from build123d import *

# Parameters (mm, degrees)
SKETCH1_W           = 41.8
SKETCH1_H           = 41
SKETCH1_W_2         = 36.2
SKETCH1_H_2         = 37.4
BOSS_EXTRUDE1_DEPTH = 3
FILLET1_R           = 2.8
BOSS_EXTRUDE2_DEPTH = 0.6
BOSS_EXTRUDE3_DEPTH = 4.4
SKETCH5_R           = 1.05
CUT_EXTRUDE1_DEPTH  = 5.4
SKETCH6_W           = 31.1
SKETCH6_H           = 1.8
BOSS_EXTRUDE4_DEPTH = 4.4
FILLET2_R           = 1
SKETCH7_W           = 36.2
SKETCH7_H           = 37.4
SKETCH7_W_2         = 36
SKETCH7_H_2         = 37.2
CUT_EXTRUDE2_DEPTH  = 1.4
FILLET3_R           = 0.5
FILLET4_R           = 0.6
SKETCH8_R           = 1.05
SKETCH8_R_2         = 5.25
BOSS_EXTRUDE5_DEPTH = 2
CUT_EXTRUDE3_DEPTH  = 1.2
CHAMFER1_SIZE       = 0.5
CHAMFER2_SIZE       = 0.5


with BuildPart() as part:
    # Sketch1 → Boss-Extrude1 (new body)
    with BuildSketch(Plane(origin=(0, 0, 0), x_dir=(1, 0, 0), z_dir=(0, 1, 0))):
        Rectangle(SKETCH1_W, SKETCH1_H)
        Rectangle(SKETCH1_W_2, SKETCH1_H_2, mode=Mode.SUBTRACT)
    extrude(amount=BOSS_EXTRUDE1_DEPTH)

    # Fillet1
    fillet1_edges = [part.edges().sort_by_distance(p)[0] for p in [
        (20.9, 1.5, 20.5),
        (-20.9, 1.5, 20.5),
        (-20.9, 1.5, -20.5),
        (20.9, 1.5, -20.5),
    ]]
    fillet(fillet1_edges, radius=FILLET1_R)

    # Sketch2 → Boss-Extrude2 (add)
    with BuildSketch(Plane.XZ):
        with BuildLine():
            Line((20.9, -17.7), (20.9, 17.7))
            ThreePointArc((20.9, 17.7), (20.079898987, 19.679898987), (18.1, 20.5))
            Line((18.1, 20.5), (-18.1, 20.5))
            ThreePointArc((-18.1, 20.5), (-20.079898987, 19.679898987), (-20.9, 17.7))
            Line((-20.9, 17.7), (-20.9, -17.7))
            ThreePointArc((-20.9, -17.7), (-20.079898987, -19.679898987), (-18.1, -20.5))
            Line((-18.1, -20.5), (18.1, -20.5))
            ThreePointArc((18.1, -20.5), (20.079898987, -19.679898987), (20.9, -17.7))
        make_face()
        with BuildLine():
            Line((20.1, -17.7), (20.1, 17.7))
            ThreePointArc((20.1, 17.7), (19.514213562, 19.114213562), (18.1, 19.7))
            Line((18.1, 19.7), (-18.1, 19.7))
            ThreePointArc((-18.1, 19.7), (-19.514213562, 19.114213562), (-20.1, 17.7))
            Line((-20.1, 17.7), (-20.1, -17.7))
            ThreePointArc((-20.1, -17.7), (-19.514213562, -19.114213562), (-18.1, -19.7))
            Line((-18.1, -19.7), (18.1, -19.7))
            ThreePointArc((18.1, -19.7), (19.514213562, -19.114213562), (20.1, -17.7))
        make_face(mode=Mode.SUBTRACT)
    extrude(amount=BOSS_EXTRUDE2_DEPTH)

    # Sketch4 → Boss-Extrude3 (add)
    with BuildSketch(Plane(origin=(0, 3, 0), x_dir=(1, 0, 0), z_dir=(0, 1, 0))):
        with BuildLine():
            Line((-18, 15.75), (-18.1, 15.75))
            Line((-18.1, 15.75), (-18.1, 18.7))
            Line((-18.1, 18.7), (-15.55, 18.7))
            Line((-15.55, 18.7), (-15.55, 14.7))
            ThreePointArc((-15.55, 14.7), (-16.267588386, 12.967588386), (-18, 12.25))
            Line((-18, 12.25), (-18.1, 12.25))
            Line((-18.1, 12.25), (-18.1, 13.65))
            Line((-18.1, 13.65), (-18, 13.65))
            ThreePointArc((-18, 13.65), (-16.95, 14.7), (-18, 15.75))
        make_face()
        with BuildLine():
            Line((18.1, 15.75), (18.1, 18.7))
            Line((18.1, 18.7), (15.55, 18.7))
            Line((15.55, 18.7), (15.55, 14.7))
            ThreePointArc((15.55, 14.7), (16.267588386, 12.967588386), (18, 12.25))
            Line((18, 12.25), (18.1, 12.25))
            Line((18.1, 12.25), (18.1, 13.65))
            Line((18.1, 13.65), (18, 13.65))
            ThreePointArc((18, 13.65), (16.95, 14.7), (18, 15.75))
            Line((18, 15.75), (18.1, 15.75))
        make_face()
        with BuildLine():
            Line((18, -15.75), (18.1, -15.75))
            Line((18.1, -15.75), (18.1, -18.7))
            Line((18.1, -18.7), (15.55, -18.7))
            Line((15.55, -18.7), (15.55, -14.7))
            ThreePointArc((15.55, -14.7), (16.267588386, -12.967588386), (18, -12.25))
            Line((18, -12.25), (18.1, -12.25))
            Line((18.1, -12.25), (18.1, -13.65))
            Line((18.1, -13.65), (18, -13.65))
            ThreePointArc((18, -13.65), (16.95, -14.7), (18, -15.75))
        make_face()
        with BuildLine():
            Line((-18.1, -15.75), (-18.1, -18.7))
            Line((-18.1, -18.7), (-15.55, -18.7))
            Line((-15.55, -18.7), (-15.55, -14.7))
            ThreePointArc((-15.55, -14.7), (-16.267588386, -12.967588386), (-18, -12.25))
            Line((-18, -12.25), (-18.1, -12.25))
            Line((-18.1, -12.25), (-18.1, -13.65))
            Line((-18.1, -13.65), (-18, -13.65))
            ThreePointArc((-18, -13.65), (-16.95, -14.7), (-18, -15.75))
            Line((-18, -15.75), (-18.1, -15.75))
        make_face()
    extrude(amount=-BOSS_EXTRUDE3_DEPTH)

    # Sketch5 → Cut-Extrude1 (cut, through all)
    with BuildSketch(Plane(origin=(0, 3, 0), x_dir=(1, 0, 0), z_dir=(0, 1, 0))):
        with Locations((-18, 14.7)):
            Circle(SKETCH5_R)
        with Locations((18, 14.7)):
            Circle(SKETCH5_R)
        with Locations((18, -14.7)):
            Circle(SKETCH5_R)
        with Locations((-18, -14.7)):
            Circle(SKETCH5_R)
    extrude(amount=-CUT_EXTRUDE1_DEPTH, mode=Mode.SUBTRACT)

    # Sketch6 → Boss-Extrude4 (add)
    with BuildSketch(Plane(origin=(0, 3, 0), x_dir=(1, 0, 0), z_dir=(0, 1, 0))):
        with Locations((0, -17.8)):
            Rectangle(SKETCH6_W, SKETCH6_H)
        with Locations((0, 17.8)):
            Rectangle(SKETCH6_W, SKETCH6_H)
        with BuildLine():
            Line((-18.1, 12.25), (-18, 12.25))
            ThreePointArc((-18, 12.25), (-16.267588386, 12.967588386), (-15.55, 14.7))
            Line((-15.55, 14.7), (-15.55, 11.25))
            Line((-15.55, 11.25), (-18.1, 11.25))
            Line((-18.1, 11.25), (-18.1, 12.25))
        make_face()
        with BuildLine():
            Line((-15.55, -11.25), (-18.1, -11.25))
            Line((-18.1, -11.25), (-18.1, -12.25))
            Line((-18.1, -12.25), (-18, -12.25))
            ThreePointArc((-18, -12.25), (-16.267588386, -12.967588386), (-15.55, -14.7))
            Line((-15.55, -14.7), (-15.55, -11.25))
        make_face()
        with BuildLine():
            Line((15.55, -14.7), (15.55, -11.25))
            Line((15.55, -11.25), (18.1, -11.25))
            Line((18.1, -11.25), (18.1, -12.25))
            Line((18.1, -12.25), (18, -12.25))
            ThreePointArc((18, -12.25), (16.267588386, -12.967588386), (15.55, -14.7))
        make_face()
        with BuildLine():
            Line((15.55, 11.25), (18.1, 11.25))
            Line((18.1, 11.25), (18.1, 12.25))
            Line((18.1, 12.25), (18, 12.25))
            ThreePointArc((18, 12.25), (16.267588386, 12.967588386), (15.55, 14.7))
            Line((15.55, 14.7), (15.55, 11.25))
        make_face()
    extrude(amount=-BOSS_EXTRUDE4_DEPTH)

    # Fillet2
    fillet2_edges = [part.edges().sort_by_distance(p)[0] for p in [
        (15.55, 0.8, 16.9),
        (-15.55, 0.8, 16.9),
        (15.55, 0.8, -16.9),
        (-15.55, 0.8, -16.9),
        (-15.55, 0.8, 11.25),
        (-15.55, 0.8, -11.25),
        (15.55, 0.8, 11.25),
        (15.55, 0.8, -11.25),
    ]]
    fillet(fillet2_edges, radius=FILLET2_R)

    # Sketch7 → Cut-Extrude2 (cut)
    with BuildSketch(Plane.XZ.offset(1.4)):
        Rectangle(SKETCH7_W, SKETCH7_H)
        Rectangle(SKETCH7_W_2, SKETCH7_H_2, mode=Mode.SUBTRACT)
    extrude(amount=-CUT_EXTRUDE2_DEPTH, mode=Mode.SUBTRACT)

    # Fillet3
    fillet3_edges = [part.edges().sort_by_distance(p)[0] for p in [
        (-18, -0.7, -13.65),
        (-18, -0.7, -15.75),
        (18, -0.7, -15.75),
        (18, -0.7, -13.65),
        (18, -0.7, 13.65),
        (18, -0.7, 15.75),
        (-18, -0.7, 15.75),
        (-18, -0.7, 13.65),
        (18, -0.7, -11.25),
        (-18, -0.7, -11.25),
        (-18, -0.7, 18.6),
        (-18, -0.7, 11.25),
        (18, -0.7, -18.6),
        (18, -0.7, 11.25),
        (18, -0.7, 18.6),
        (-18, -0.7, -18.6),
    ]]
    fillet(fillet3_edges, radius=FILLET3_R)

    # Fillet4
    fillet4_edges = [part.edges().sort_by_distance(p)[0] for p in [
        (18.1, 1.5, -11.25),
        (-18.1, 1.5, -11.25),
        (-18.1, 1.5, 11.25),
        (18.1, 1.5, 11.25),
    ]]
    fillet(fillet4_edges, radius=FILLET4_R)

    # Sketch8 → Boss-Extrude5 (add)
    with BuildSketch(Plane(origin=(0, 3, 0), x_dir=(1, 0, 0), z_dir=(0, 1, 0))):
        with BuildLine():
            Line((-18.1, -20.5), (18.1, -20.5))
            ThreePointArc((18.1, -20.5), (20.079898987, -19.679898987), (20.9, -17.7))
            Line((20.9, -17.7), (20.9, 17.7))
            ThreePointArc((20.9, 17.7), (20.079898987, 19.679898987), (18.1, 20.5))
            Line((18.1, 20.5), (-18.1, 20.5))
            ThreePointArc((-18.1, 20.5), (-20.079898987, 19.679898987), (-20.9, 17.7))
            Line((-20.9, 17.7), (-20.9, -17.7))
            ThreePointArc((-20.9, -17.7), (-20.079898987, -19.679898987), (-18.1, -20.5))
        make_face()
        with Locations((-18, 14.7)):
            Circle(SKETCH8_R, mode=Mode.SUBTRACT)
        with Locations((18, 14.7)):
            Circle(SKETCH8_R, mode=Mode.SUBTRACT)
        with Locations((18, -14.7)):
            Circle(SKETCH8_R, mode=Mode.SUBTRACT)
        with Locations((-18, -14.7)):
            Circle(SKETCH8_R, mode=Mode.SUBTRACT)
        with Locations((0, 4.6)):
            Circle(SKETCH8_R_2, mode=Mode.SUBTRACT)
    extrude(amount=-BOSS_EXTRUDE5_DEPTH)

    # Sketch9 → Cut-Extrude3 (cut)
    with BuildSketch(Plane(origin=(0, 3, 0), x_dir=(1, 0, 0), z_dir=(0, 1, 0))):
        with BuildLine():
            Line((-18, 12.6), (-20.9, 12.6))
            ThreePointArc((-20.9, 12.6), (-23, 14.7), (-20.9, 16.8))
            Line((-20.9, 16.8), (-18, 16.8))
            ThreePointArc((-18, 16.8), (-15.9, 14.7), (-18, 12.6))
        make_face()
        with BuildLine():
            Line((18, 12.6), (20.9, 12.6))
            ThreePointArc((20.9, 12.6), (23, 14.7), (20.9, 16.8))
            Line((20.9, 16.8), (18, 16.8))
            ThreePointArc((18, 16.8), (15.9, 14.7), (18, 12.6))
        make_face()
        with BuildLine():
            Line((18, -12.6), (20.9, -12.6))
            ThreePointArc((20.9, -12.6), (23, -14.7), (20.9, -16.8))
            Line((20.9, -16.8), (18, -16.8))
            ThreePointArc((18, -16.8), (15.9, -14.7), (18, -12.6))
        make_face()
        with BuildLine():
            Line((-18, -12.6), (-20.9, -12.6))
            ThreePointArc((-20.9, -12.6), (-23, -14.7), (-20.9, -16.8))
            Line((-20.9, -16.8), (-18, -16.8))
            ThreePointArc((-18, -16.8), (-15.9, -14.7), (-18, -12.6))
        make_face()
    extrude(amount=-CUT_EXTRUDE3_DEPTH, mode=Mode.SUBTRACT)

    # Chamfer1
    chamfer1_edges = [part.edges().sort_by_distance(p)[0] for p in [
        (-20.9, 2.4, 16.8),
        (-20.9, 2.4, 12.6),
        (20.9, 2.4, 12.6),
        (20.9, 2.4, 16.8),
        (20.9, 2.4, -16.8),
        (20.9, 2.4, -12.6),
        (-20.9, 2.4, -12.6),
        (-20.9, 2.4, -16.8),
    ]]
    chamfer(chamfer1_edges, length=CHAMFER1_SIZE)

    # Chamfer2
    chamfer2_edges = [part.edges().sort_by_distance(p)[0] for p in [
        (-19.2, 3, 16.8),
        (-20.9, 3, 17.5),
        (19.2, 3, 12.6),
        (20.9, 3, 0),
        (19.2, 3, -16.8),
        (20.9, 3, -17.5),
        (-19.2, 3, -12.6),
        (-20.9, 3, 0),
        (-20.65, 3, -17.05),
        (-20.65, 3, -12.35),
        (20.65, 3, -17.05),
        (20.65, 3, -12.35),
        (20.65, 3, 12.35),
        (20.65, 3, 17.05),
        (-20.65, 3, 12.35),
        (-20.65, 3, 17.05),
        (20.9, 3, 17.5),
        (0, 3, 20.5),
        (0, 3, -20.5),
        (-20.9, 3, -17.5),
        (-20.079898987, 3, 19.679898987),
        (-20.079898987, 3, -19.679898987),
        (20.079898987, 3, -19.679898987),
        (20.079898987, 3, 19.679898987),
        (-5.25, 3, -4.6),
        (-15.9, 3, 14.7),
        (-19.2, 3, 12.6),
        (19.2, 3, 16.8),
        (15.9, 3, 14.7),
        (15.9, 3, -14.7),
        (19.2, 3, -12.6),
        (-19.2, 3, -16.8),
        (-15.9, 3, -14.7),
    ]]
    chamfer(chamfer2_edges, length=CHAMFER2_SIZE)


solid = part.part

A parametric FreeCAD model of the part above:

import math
import FreeCAD as App
import Part
import Sketcher

V = App.Vector
Q = App.Units.Quantity


def edges_at(feature, points):
    """Names of the edges that pass closest to the given points."""
    edges = feature.Shape.Edges
    near = lambda p: min(range(len(edges)), key=lambda i: edges[i].distToShape(Part.Vertex(*p))[0])
    return sorted({f"Edge{near(p) + 1}" for p in points})

doc = App.newDocument("Part")
body = doc.addObject("PartDesign::Body", "Body")

# Sketch on XZ plane
sketch1 = body.newObject("Sketcher::SketchObject", "Sketch")
sketch1.AttachmentSupport = (doc.getObject("XZ_Plane"), [""])
sketch1.MapMode = "FlatFace"
sketch1.addGeometry(Part.LineSegment(V(-21, -20, 0), V(-21, 20, 0)), False)
sketch1.addGeometry(Part.LineSegment(V(-21, 20, 0), V(21, 20, 0)), False)
sketch1.addGeometry(Part.LineSegment(V(21, 20, 0), V(21, -20, 0)), False)
sketch1.addGeometry(Part.LineSegment(V(21, -20, 0), V(-21, -20, 0)), False)
sketch1.addGeometry(Part.LineSegment(V(18, 19, 0), V(-18, 19, 0)), False)
sketch1.addGeometry(Part.LineSegment(V(-18, 19, 0), V(-18, -19, 0)), False)
sketch1.addGeometry(Part.LineSegment(V(-18, -19, 0), V(18, -19, 0)), False)
sketch1.addGeometry(Part.LineSegment(V(18, -19, 0), V(18, 19, 0)), False)
sketch1.addConstraint(Sketcher.Constraint("Coincident", 0, 2, 1, 1))
sketch1.addConstraint(Sketcher.Constraint("Coincident", 1, 2, 2, 1))
sketch1.addConstraint(Sketcher.Constraint("Coincident", 2, 2, 3, 1))
sketch1.addConstraint(Sketcher.Constraint("Coincident", 3, 2, 0, 1))
sketch1.addConstraint(Sketcher.Constraint("Coincident", 4, 2, 5, 1))
sketch1.addConstraint(Sketcher.Constraint("Coincident", 5, 2, 6, 1))
sketch1.addConstraint(Sketcher.Constraint("Coincident", 6, 2, 7, 1))
sketch1.addConstraint(Sketcher.Constraint("Coincident", 7, 2, 4, 1))
sketch1.addConstraint(Sketcher.Constraint("Vertical", 0))
sketch1.addConstraint(Sketcher.Constraint("Horizontal", 1))
sketch1.addConstraint(Sketcher.Constraint("Vertical", 2))
sketch1.addConstraint(Sketcher.Constraint("Horizontal", 3))
sketch1.addConstraint(Sketcher.Constraint("Horizontal", 4))
sketch1.addConstraint(Sketcher.Constraint("Vertical", 5))
sketch1.addConstraint(Sketcher.Constraint("Horizontal", 6))
sketch1.addConstraint(Sketcher.Constraint("Vertical", 7))
sketch1.addConstraint(Sketcher.Constraint("Symmetric", 0, 2, 2, 2, -1, 1))
sketch1.addConstraint(Sketcher.Constraint("Symmetric", 4, 2, 6, 2, -1, 1))
sketch1.addConstraint(Sketcher.Constraint("DistanceY", 0, 1, 0, 2, Q("41 mm")))
sketch1.addConstraint(Sketcher.Constraint("DistanceX", 1, 1, 1, 2, Q("41.8 mm")))
sketch1.addConstraint(Sketcher.Constraint("DistanceX", 4, 2, 4, 1, Q("36.2 mm")))
sketch1.addConstraint(Sketcher.Constraint("DistanceY", 5, 2, 5, 1, Q("37.4 mm")))
pad1 = body.newObject("PartDesign::Pad", "Pad")
pad1.Profile = sketch1
pad1.Length = 3
pad1.Reversed = True
doc.recompute()

fillet = body.newObject("PartDesign::Fillet", "Fillet")
fillet.Base = (pad1, edges_at(pad1, [
    (20.9, 1.5, 20.5),
    (-20.9, 1.5, 20.5),
    (-20.9, 1.5, -20.5),
    (20.9, 1.5, -20.5),
]))
fillet.Radius = 2.8

# Sketch on XZ plane
sketch2 = body.newObject("Sketcher::SketchObject", "Sketch001")
sketch2.AttachmentSupport = (doc.getObject("XZ_Plane"), [""])
sketch2.MapMode = "FlatFace"
sketch2.addGeometry(Part.LineSegment(V(20.9, -17.7, 0), V(20.9, 17.7, 0)), False)
sketch2.addGeometry(Part.ArcOfCircle(Part.Circle(V(18.1, 17.7, 0), V(0, 0, 1), 2.8), math.radians(0), math.radians(90)), False)
sketch2.addGeometry(Part.LineSegment(V(18.1, 20.5, 0), V(-18.1, 20.5, 0)), False)
sketch2.addGeometry(Part.ArcOfCircle(Part.Circle(V(-18.1, 17.7, 0), V(0, 0, 1), 2.8), math.radians(90), math.radians(180)), False)
sketch2.addGeometry(Part.LineSegment(V(-20.9, 17.7, 0), V(-20.9, -17.7, 0)), False)
sketch2.addGeometry(Part.ArcOfCircle(Part.Circle(V(-18.1, -17.7, 0), V(0, 0, 1), 2.8), math.radians(-180), math.radians(-90)), False)
sketch2.addGeometry(Part.LineSegment(V(-18.1, -20.5, 0), V(18.1, -20.5, 0)), False)
sketch2.addGeometry(Part.ArcOfCircle(Part.Circle(V(18.1, -17.7, 0), V(0, 0, 1), 2.8), math.radians(-90), math.radians(0)), False)
sketch2.addGeometry(Part.LineSegment(V(20.1, 17.7, 0), V(20.1, -17.7, 0)), False)
sketch2.addGeometry(Part.ArcOfCircle(Part.Circle(V(18.1, -17.7, 0), V(0, 0, 1), 2), math.radians(-90), math.radians(0)), False)
sketch2.addGeometry(Part.LineSegment(V(18.1, -19.7, 0), V(-18.1, -19.7, 0)), False)
sketch2.addGeometry(Part.ArcOfCircle(Part.Circle(V(-18.1, -17.7, 0), V(0, 0, 1), 2), math.radians(-180), math.radians(-90)), False)
sketch2.addGeometry(Part.LineSegment(V(-20.1, -17.7, 0), V(-20.1, 17.7, 0)), False)
sketch2.addGeometry(Part.ArcOfCircle(Part.Circle(V(-18.1, 17.7, 0), V(0, 0, 1), 2), math.radians(90), math.radians(180)), False)
sketch2.addGeometry(Part.LineSegment(V(-18.1, 19.7, 0), V(18.1, 19.7, 0)), False)
sketch2.addGeometry(Part.ArcOfCircle(Part.Circle(V(18.1, 17.7, 0), V(0, 0, 1), 2), math.radians(0), math.radians(90)), False)
sketch2.addConstraint(Sketcher.Constraint("Tangent", 0, 2, 1, 1))
sketch2.addConstraint(Sketcher.Constraint("Tangent", 1, 2, 2, 1))
sketch2.addConstraint(Sketcher.Constraint("Tangent", 2, 2, 3, 1))
sketch2.addConstraint(Sketcher.Constraint("Tangent", 3, 2, 4, 1))
sketch2.addConstraint(Sketcher.Constraint("Tangent", 4, 2, 5, 1))
sketch2.addConstraint(Sketcher.Constraint("Tangent", 5, 2, 6, 1))
sketch2.addConstraint(Sketcher.Constraint("Tangent", 6, 2, 7, 1))
sketch2.addConstraint(Sketcher.Constraint("Tangent", 7, 2, 0, 1))
sketch2.addConstraint(Sketcher.Constraint("Tangent", 8, 2, 9, 2))
sketch2.addConstraint(Sketcher.Constraint("Tangent", 9, 1, 10, 1))
sketch2.addConstraint(Sketcher.Constraint("Tangent", 10, 2, 11, 2))
sketch2.addConstraint(Sketcher.Constraint("Tangent", 11, 1, 12, 1))
sketch2.addConstraint(Sketcher.Constraint("Tangent", 12, 2, 13, 2))
sketch2.addConstraint(Sketcher.Constraint("Tangent", 13, 1, 14, 1))
sketch2.addConstraint(Sketcher.Constraint("Tangent", 14, 2, 15, 2))
sketch2.addConstraint(Sketcher.Constraint("Tangent", 15, 1, 8, 1))
sketch2.addConstraint(Sketcher.Constraint("Vertical", 0))
sketch2.addConstraint(Sketcher.Constraint("Horizontal", 2))
sketch2.addConstraint(Sketcher.Constraint("Vertical", 4))
sketch2.addConstraint(Sketcher.Constraint("Horizontal", 6))
sketch2.addConstraint(Sketcher.Constraint("Vertical", 8))
sketch2.addConstraint(Sketcher.Constraint("Horizontal", 10))
sketch2.addConstraint(Sketcher.Constraint("Vertical", 12))
sketch2.addConstraint(Sketcher.Constraint("Horizontal", 14))
sketch2.addConstraint(Sketcher.Constraint("Coincident", 9, 3, 7, 3))
sketch2.addConstraint(Sketcher.Constraint("Coincident", 11, 3, 5, 3))
sketch2.addConstraint(Sketcher.Constraint("Coincident", 13, 3, 3, 3))
sketch2.addConstraint(Sketcher.Constraint("Equal", 1, 3))
sketch2.addConstraint(Sketcher.Constraint("Equal", 3, 5))
sketch2.addConstraint(Sketcher.Constraint("Equal", 5, 7))
sketch2.addConstraint(Sketcher.Constraint("Equal", 13, 15))
sketch2.addConstraint(Sketcher.Constraint("Symmetric", 1, 3, 5, 3, -1, 1))
sketch2.addConstraint(Sketcher.Constraint("Radius", 9, Q("2 mm")))
sketch2.addConstraint(Sketcher.Constraint("Radius", 1, Q("2.8 mm")))
sketch2.addConstraint(Sketcher.Constraint("DistanceX", 2, 2, 2, 1, Q("36.2 mm")))
sketch2.addConstraint(Sketcher.Constraint("DistanceY", 0, 1, 0, 2, Q("35.4 mm")))
pad2 = body.newObject("PartDesign::Pad", "Pad001")
pad2.Profile = sketch2
pad2.Length = 0.6

# Sketch on XZ plane
sketch3 = body.newObject("Sketcher::SketchObject", "Sketch002")
sketch3.AttachmentSupport = (doc.getObject("XZ_Plane"), [""])
sketch3.MapMode = "FlatFace"
sketch3.AttachmentOffset = App.Placement(V(0, 0, -3), App.Rotation())
sketch3.addGeometry(Part.LineSegment(V(-18.1, -15.75, 0), V(-18, -15.75, 0)), False)
sketch3.addGeometry(Part.ArcOfCircle(Part.Circle(V(-18, -14.7, 0), V(0, 0, 1), 1.05), math.radians(-90), math.radians(90)), False)
sketch3.addGeometry(Part.LineSegment(V(-18, -13.65, 0), V(-18.1, -13.65, 0)), False)
sketch3.addGeometry(Part.LineSegment(V(-18.1, -13.65, 0), V(-18.1, -12.25, 0)), False)
sketch3.addGeometry(Part.LineSegment(V(-18.1, -12.25, 0), V(-18, -12.25, 0)), False)
sketch3.addGeometry(Part.ArcOfCircle(Part.Circle(V(-18, -14.7, 0), V(0, 0, 1), 2.45), math.radians(0), math.radians(90)), False)
sketch3.addGeometry(Part.LineSegment(V(-15.55, -14.7, 0), V(-15.55, -18.7, 0)), False)
sketch3.addGeometry(Part.LineSegment(V(-15.55, -18.7, 0), V(-18.1, -18.7, 0)), False)
sketch3.addGeometry(Part.LineSegment(V(-18.1, -18.7, 0), V(-18.1, -15.75, 0)), False)
sketch3.addGeometry(Part.LineSegment(V(18.1, -15.75, 0), V(18.1, -18.7, 0)), False)
sketch3.addGeometry(Part.LineSegment(V(18.1, -18.7, 0), V(15.55, -18.7, 0)), False)
sketch3.addGeometry(Part.LineSegment(V(15.55, -18.7, 0), V(15.55, -14.7, 0)), False)
sketch3.addGeometry(Part.ArcOfCircle(Part.Circle(V(18, -14.7, 0), V(0, 0, 1), 2.45), math.radians(90), math.radians(180)), False)
sketch3.addGeometry(Part.LineSegment(V(18, -12.25, 0), V(18.1, -12.25, 0)), False)
sketch3.addGeometry(Part.LineSegment(V(18.1, -12.25, 0), V(18.1, -13.65, 0)), False)
sketch3.addGeometry(Part.LineSegment(V(18.1, -13.65, 0), V(18, -13.65, 0)), False)
sketch3.addGeometry(Part.ArcOfCircle(Part.Circle(V(18, -14.7, 0), V(0, 0, 1), 1.05), math.radians(90), math.radians(270)), False)
sketch3.addGeometry(Part.LineSegment(V(18, -15.75, 0), V(18.1, -15.75, 0)), False)
sketch3.addGeometry(Part.LineSegment(V(18.1, 15.75, 0), V(18, 15.75, 0)), False)
sketch3.addGeometry(Part.ArcOfCircle(Part.Circle(V(18, 14.7, 0), V(0, 0, 1), 1.05), math.radians(90), math.radians(270)), False)
sketch3.addGeometry(Part.LineSegment(V(18, 13.65, 0), V(18.1, 13.65, 0)), False)
sketch3.addGeometry(Part.LineSegment(V(18.1, 13.65, 0), V(18.1, 12.25, 0)), False)
sketch3.addGeometry(Part.LineSegment(V(18.1, 12.25, 0), V(18, 12.25, 0)), False)
sketch3.addGeometry(Part.ArcOfCircle(Part.Circle(V(18, 14.7, 0), V(0, 0, 1), 2.45), math.radians(180), math.radians(270)), False)
sketch3.addGeometry(Part.LineSegment(V(15.55, 14.7, 0), V(15.55, 18.7, 0)), False)
sketch3.addGeometry(Part.LineSegment(V(15.55, 18.7, 0), V(18.1, 18.7, 0)), False)
sketch3.addGeometry(Part.LineSegment(V(18.1, 18.7, 0), V(18.1, 15.75, 0)), False)
sketch3.addGeometry(Part.LineSegment(V(-18.1, 15.75, 0), V(-18.1, 18.7, 0)), False)
sketch3.addGeometry(Part.LineSegment(V(-18.1, 18.7, 0), V(-15.55, 18.7, 0)), False)
sketch3.addGeometry(Part.LineSegment(V(-15.55, 18.7, 0), V(-15.55, 14.7, 0)), False)
sketch3.addGeometry(Part.ArcOfCircle(Part.Circle(V(-18, 14.7, 0), V(0, 0, 1), 2.45), math.radians(-90), math.radians(0)), False)
sketch3.addGeometry(Part.LineSegment(V(-18, 12.25, 0), V(-18.1, 12.25, 0)), False)
sketch3.addGeometry(Part.LineSegment(V(-18.1, 12.25, 0), V(-18.1, 13.65, 0)), False)
sketch3.addGeometry(Part.LineSegment(V(-18.1, 13.65, 0), V(-18, 13.65, 0)), False)
sketch3.addGeometry(Part.ArcOfCircle(Part.Circle(V(-18, 14.7, 0), V(0, 0, 1), 1.05), math.radians(-90), math.radians(90)), False)
sketch3.addGeometry(Part.LineSegment(V(-18, 15.75, 0), V(-18.1, 15.75, 0)), False)
sketch3.addConstraint(Sketcher.Constraint("Tangent", 0, 2, 1, 1))
sketch3.addConstraint(Sketcher.Constraint("Tangent", 1, 2, 2, 1))
sketch3.addConstraint(Sketcher.Constraint("Coincident", 2, 2, 3, 1))
sketch3.addConstraint(Sketcher.Constraint("Coincident", 3, 2, 4, 1))
sketch3.addConstraint(Sketcher.Constraint("Tangent", 4, 2, 5, 2))
sketch3.addConstraint(Sketcher.Constraint("Tangent", 5, 1, 6, 1))
sketch3.addConstraint(Sketcher.Constraint("Coincident", 6, 2, 7, 1))
sketch3.addConstraint(Sketcher.Constraint("Coincident", 7, 2, 8, 1))
sketch3.addConstraint(Sketcher.Constraint("Coincident", 8, 2, 0, 1))
sketch3.addConstraint(Sketcher.Constraint("Coincident", 9, 2, 10, 1))
sketch3.addConstraint(Sketcher.Constraint("Coincident", 10, 2, 11, 1))
sketch3.addConstraint(Sketcher.Constraint("Tangent", 11, 2, 12, 2))
sketch3.addConstraint(Sketcher.Constraint("Tangent", 12, 1, 13, 1))
sketch3.addConstraint(Sketcher.Constraint("Coincident", 13, 2, 14, 1))
sketch3.addConstraint(Sketcher.Constraint("Coincident", 14, 2, 15, 1))
sketch3.addConstraint(Sketcher.Constraint("Tangent", 15, 2, 16, 1))
sketch3.addConstraint(Sketcher.Constraint("Tangent", 16, 2, 17, 1))
sketch3.addConstraint(Sketcher.Constraint("Coincident", 17, 2, 9, 1))
sketch3.addConstraint(Sketcher.Constraint("Tangent", 18, 2, 19, 1))
sketch3.addConstraint(Sketcher.Constraint("Tangent", 19, 2, 20, 1))
sketch3.addConstraint(Sketcher.Constraint("Coincident", 20, 2, 21, 1))
sketch3.addConstraint(Sketcher.Constraint("Coincident", 21, 2, 22, 1))
sketch3.addConstraint(Sketcher.Constraint("Tangent", 22, 2, 23, 2))
sketch3.addConstraint(Sketcher.Constraint("Tangent", 23, 1, 24, 1))
sketch3.addConstraint(Sketcher.Constraint("Coincident", 24, 2, 25, 1))
sketch3.addConstraint(Sketcher.Constraint("Coincident", 25, 2, 26, 1))
sketch3.addConstraint(Sketcher.Constraint("Coincident", 26, 2, 18, 1))
sketch3.addConstraint(Sketcher.Constraint("Coincident", 27, 2, 28, 1))
sketch3.addConstraint(Sketcher.Constraint("Coincident", 28, 2, 29, 1))
sketch3.addConstraint(Sketcher.Constraint("Tangent", 29, 2, 30, 2))
sketch3.addConstraint(Sketcher.Constraint("Tangent", 30, 1, 31, 1))
sketch3.addConstraint(Sketcher.Constraint("Coincident", 31, 2, 32, 1))
sketch3.addConstraint(Sketcher.Constraint("Coincident", 32, 2, 33, 1))
sketch3.addConstraint(Sketcher.Constraint("Tangent", 33, 2, 34, 1))
sketch3.addConstraint(Sketcher.Constraint("Tangent", 34, 2, 35, 1))
sketch3.addConstraint(Sketcher.Constraint("Coincident", 35, 2, 27, 1))
sketch3.addConstraint(Sketcher.Constraint("Horizontal", 0))
sketch3.addConstraint(Sketcher.Constraint("Horizontal", 2))
sketch3.addConstraint(Sketcher.Constraint("Vertical", 3))
sketch3.addConstraint(Sketcher.Constraint("Horizontal", 4))
sketch3.addConstraint(Sketcher.Constraint("Vertical", 6))
sketch3.addConstraint(Sketcher.Constraint("Horizontal", 7))
sketch3.addConstraint(Sketcher.Constraint("Vertical", 8))
sketch3.addConstraint(Sketcher.Constraint("Vertical", 9))
sketch3.addConstraint(Sketcher.Constraint("Horizontal", 10))
sketch3.addConstraint(Sketcher.Constraint("Vertical", 11))
sketch3.addConstraint(Sketcher.Constraint("Horizontal", 13))
sketch3.addConstraint(Sketcher.Constraint("Vertical", 14))
sketch3.addConstraint(Sketcher.Constraint("Horizontal", 15))
sketch3.addConstraint(Sketcher.Constraint("Horizontal", 17))
sketch3.addConstraint(Sketcher.Constraint("Horizontal", 18))
sketch3.addConstraint(Sketcher.Constraint("Horizontal", 20))
sketch3.addConstraint(Sketcher.Constraint("Vertical", 21))
sketch3.addConstraint(Sketcher.Constraint("Horizontal", 22))
sketch3.addConstraint(Sketcher.Constraint("Vertical", 24))
sketch3.addConstraint(Sketcher.Constraint("Horizontal", 25))
sketch3.addConstraint(Sketcher.Constraint("Vertical", 26))
sketch3.addConstraint(Sketcher.Constraint("Vertical", 27))
sketch3.addConstraint(Sketcher.Constraint("Horizontal", 28))
sketch3.addConstraint(Sketcher.Constraint("Vertical", 29))
sketch3.addConstraint(Sketcher.Constraint("Horizontal", 31))
sketch3.addConstraint(Sketcher.Constraint("Vertical", 32))
sketch3.addConstraint(Sketcher.Constraint("Horizontal", 33))
sketch3.addConstraint(Sketcher.Constraint("Horizontal", 35))
sketch3.addConstraint(Sketcher.Constraint("Coincident", 5, 3, 1, 3))
sketch3.addConstraint(Sketcher.Constraint("Coincident", 16, 3, 12, 3))
sketch3.addConstraint(Sketcher.Constraint("Coincident", 23, 3, 19, 3))
sketch3.addConstraint(Sketcher.Constraint("Coincident", 34, 3, 30, 3))
sketch3.addConstraint(Sketcher.Constraint("Equal", 5, 12))
sketch3.addConstraint(Sketcher.Constraint("Equal", 1, 16))
sketch3.addConstraint(Sketcher.Constraint("Equal", 16, 19))
sketch3.addConstraint(Sketcher.Constraint("Equal", 12, 23))
sketch3.addConstraint(Sketcher.Constraint("Equal", 23, 30))
sketch3.addConstraint(Sketcher.Constraint("Equal", 19, 34))
sketch3.addConstraint(Sketcher.Constraint("Symmetric", 1, 3, 19, 3, -1, 1))
sketch3.addConstraint(Sketcher.Constraint("Symmetric", 12, 3, 30, 3, -1, 1))
sketch3.addConstraint(Sketcher.Constraint("Symmetric", 7, 2, 25, 2, -1, 1))
sketch3.addConstraint(Sketcher.Constraint("Symmetric", 9, 2, 27, 2, -1, 1))
sketch3.addConstraint(Sketcher.Constraint("Symmetric", 1, 3, 12, 3, -2))
sketch3.addConstraint(Sketcher.Constraint("Symmetric", 7, 2, 9, 2, -2))
sketch3.addConstraint(Sketcher.Constraint("Vertical", 3, 2, 7, 2))
sketch3.addConstraint(Sketcher.Constraint("Vertical", 9, 2, 13, 2))
sketch3.addConstraint(Sketcher.Constraint("Vertical", 17, 2, 20, 2))
sketch3.addConstraint(Sketcher.Constraint("Vertical", 27, 2, 31, 2))
sketch3.addConstraint(Sketcher.Constraint("DistanceY", 6, 2, 6, 1, Q("4 mm")))
sketch3.addConstraint(Sketcher.Constraint("Radius", 1, Q("1.05 mm")))
sketch3.addConstraint(Sketcher.Constraint("Radius", 5, Q("2.45 mm")))
sketch3.addConstraint(Sketcher.Constraint("DistanceX", 0, 1, 0, 2, Q("0.1 mm")))
sketch3.addConstraint(Sketcher.Constraint("DistanceX", 1, 3, -1, 1, Q("18 mm")))
sketch3.addConstraint(Sketcher.Constraint("DistanceY", 12, 1, 18, 2, Q("28 mm")))
pad3 = body.newObject("PartDesign::Pad", "Pad002")
pad3.Profile = sketch3
pad3.Length = 4.4

# Sketch on XZ plane
sketch4 = body.newObject("Sketcher::SketchObject", "Sketch003")
sketch4.AttachmentSupport = (doc.getObject("XZ_Plane"), [""])
sketch4.MapMode = "FlatFace"
sketch4.AttachmentOffset = App.Placement(V(0, 0, -3), App.Rotation())
sketch4.addGeometry(Part.Circle(V(-18, -14.7, 0), V(0, 0, 1), 1.1), False)
sketch4.addGeometry(Part.Circle(V(18, -14.7, 0), V(0, 0, 1), 1.1), False)
sketch4.addGeometry(Part.Circle(V(18, 14.7, 0), V(0, 0, 1), 1.1), False)
sketch4.addGeometry(Part.Circle(V(-18, 14.7, 0), V(0, 0, 1), 1.1), False)
sketch4.addConstraint(Sketcher.Constraint("Equal", 0, 1))
sketch4.addConstraint(Sketcher.Constraint("Equal", 1, 2))
sketch4.addConstraint(Sketcher.Constraint("Equal", 2, 3))
sketch4.addConstraint(Sketcher.Constraint("Symmetric", 0, 3, 2, 3, -1, 1))
sketch4.addConstraint(Sketcher.Constraint("Symmetric", 1, 3, 3, 3, -1, 1))
sketch4.addConstraint(Sketcher.Constraint("Symmetric", 0, 3, 1, 3, -2))
sketch4.addConstraint(Sketcher.Constraint("Diameter", 0, Q("2.1 mm")))
sketch4.addConstraint(Sketcher.Constraint("DistanceX", 0, 3, -1, 1, Q("18 mm")))
sketch4.addConstraint(Sketcher.Constraint("DistanceY", 0, 3, -1, 1, Q("14.7 mm")))
pocket1 = body.newObject("PartDesign::Pocket", "Pocket")
pocket1.Profile = sketch4
pocket1.Type = "ThroughAll"
pocket1.Reversed = True

# Sketch on XZ plane
sketch5 = body.newObject("Sketcher::SketchObject", "Sketch004")
sketch5.AttachmentSupport = (doc.getObject("XZ_Plane"), [""])
sketch5.MapMode = "FlatFace"
sketch5.AttachmentOffset = App.Placement(V(0, 0, -3), App.Rotation())
sketch5.addGeometry(Part.LineSegment(V(-15.55, 16.9, 0), V(-15.55, 18.7, 0)), False)
sketch5.addGeometry(Part.LineSegment(V(-15.55, 18.7, 0), V(15.55, 18.7, 0)), False)
sketch5.addGeometry(Part.LineSegment(V(15.55, 18.7, 0), V(15.55, 16.9, 0)), False)
sketch5.addGeometry(Part.LineSegment(V(15.55, 16.9, 0), V(-15.55, 16.9, 0)), False)
sketch5.addGeometry(Part.LineSegment(V(-15.55, -18.7, 0), V(-15.55, -16.9, 0)), False)
sketch5.addGeometry(Part.LineSegment(V(-15.55, -16.9, 0), V(15.55, -16.9, 0)), False)
sketch5.addGeometry(Part.LineSegment(V(15.55, -16.9, 0), V(15.55, -18.7, 0)), False)
sketch5.addGeometry(Part.LineSegment(V(15.55, -18.7, 0), V(-15.55, -18.7, 0)), False)
sketch5.addGeometry(Part.LineSegment(V(-18, -12.25, 0), V(-18.1, -12.25, 0)), False)
sketch5.addGeometry(Part.LineSegment(V(-18.1, -12.25, 0), V(-18.1, -11.25, 0)), False)
sketch5.addGeometry(Part.LineSegment(V(-18.1, -11.25, 0), V(-15.55, -11.25, 0)), False)
sketch5.addGeometry(Part.LineSegment(V(-15.55, -11.25, 0), V(-15.55, -14.7, 0)), False)
sketch5.addGeometry(Part.ArcOfCircle(Part.Circle(V(-18, -14.7, 0), V(0, 0, 1), 2.45), math.radians(0), math.radians(90)), False)
sketch5.addGeometry(Part.LineSegment(V(-15.55, 11.25, 0), V(-18.1, 11.25, 0)), False)
sketch5.addGeometry(Part.LineSegment(V(-18.1, 11.25, 0), V(-18.1, 12.25, 0)), False)
sketch5.addGeometry(Part.LineSegment(V(-18.1, 12.25, 0), V(-18, 12.25, 0)), False)
sketch5.addGeometry(Part.ArcOfCircle(Part.Circle(V(-18, 14.7, 0), V(0, 0, 1), 2.45), math.radians(-90), math.radians(0)), False)
sketch5.addGeometry(Part.LineSegment(V(-15.55, 14.7, 0), V(-15.55, 11.25, 0)), False)
sketch5.addGeometry(Part.LineSegment(V(15.55, 11.25, 0), V(15.55, 14.7, 0)), False)
sketch5.addGeometry(Part.ArcOfCircle(Part.Circle(V(18, 14.7, 0), V(0, 0, 1), 2.45), math.radians(180), math.radians(270)), False)
sketch5.addGeometry(Part.LineSegment(V(18, 12.25, 0), V(18.1, 12.25, 0)), False)
sketch5.addGeometry(Part.LineSegment(V(18.1, 12.25, 0), V(18.1, 11.25, 0)), False)
sketch5.addGeometry(Part.LineSegment(V(18.1, 11.25, 0), V(15.55, 11.25, 0)), False)
sketch5.addGeometry(Part.LineSegment(V(15.55, -11.25, 0), V(18.1, -11.25, 0)), False)
sketch5.addGeometry(Part.LineSegment(V(18.1, -11.25, 0), V(18.1, -12.25, 0)), False)
sketch5.addGeometry(Part.LineSegment(V(18.1, -12.25, 0), V(18, -12.25, 0)), False)
sketch5.addGeometry(Part.ArcOfCircle(Part.Circle(V(18, -14.7, 0), V(0, 0, 1), 2.45), math.radians(90), math.radians(180)), False)
sketch5.addGeometry(Part.LineSegment(V(15.55, -14.7, 0), V(15.55, -11.25, 0)), False)
sketch5.addConstraint(Sketcher.Constraint("Coincident", 0, 2, 1, 1))
sketch5.addConstraint(Sketcher.Constraint("Coincident", 1, 2, 2, 1))
sketch5.addConstraint(Sketcher.Constraint("Coincident", 2, 2, 3, 1))
sketch5.addConstraint(Sketcher.Constraint("Coincident", 3, 2, 0, 1))
sketch5.addConstraint(Sketcher.Constraint("Coincident", 4, 2, 5, 1))
sketch5.addConstraint(Sketcher.Constraint("Coincident", 5, 2, 6, 1))
sketch5.addConstraint(Sketcher.Constraint("Coincident", 6, 2, 7, 1))
sketch5.addConstraint(Sketcher.Constraint("Coincident", 7, 2, 4, 1))
sketch5.addConstraint(Sketcher.Constraint("Coincident", 8, 2, 9, 1))
sketch5.addConstraint(Sketcher.Constraint("Coincident", 9, 2, 10, 1))
sketch5.addConstraint(Sketcher.Constraint("Coincident", 10, 2, 11, 1))
sketch5.addConstraint(Sketcher.Constraint("Tangent", 11, 2, 12, 1))
sketch5.addConstraint(Sketcher.Constraint("Tangent", 12, 2, 8, 1))
sketch5.addConstraint(Sketcher.Constraint("Coincident", 13, 2, 14, 1))
sketch5.addConstraint(Sketcher.Constraint("Coincident", 14, 2, 15, 1))
sketch5.addConstraint(Sketcher.Constraint("Tangent", 15, 2, 16, 1))
sketch5.addConstraint(Sketcher.Constraint("Tangent", 16, 2, 17, 1))
sketch5.addConstraint(Sketcher.Constraint("Coincident", 17, 2, 13, 1))
sketch5.addConstraint(Sketcher.Constraint("Tangent", 18, 2, 19, 1))
sketch5.addConstraint(Sketcher.Constraint("Tangent", 19, 2, 20, 1))
sketch5.addConstraint(Sketcher.Constraint("Coincident", 20, 2, 21, 1))
sketch5.addConstraint(Sketcher.Constraint("Coincident", 21, 2, 22, 1))
sketch5.addConstraint(Sketcher.Constraint("Coincident", 22, 2, 18, 1))
sketch5.addConstraint(Sketcher.Constraint("Coincident", 23, 2, 24, 1))
sketch5.addConstraint(Sketcher.Constraint("Coincident", 24, 2, 25, 1))
sketch5.addConstraint(Sketcher.Constraint("Tangent", 25, 2, 26, 1))
sketch5.addConstraint(Sketcher.Constraint("Tangent", 26, 2, 27, 1))
sketch5.addConstraint(Sketcher.Constraint("Coincident", 27, 2, 23, 1))
sketch5.addConstraint(Sketcher.Constraint("Vertical", 0))
sketch5.addConstraint(Sketcher.Constraint("Horizontal", 1))
sketch5.addConstraint(Sketcher.Constraint("Vertical", 2))
sketch5.addConstraint(Sketcher.Constraint("Horizontal", 3))
sketch5.addConstraint(Sketcher.Constraint("Vertical", 4))
sketch5.addConstraint(Sketcher.Constraint("Horizontal", 5))
sketch5.addConstraint(Sketcher.Constraint("Vertical", 6))
sketch5.addConstraint(Sketcher.Constraint("Horizontal", 7))
sketch5.addConstraint(Sketcher.Constraint("Horizontal", 8))
sketch5.addConstraint(Sketcher.Constraint("Vertical", 9))
sketch5.addConstraint(Sketcher.Constraint("Horizontal", 10))
sketch5.addConstraint(Sketcher.Constraint("Vertical", 11))
sketch5.addConstraint(Sketcher.Constraint("Horizontal", 13))
sketch5.addConstraint(Sketcher.Constraint("Vertical", 14))
sketch5.addConstraint(Sketcher.Constraint("Horizontal", 15))
sketch5.addConstraint(Sketcher.Constraint("Vertical", 17))
sketch5.addConstraint(Sketcher.Constraint("Vertical", 18))
sketch5.addConstraint(Sketcher.Constraint("Horizontal", 20))
sketch5.addConstraint(Sketcher.Constraint("Vertical", 21))
sketch5.addConstraint(Sketcher.Constraint("Horizontal", 22))
sketch5.addConstraint(Sketcher.Constraint("Horizontal", 23))
sketch5.addConstraint(Sketcher.Constraint("Vertical", 24))
sketch5.addConstraint(Sketcher.Constraint("Horizontal", 25))
sketch5.addConstraint(Sketcher.Constraint("Vertical", 27))
sketch5.addConstraint(Sketcher.Constraint("Equal", 12, 16))
sketch5.addConstraint(Sketcher.Constraint("Equal", 16, 19))
sketch5.addConstraint(Sketcher.Constraint("Equal", 19, 26))
sketch5.addConstraint(Sketcher.Constraint("Symmetric", 12, 3, 19, 3, -1, 1))
sketch5.addConstraint(Sketcher.Constraint("Symmetric", 16, 3, 26, 3, -1, 1))
sketch5.addConstraint(Sketcher.Constraint("Symmetric", 2, 2, 4, 2, -1, 1))
sketch5.addConstraint(Sketcher.Constraint("Symmetric", 0, 2, 6, 2, -1, 1))
sketch5.addConstraint(Sketcher.Constraint("Symmetric", 9, 2, 21, 2, -1, 1))
sketch5.addConstraint(Sketcher.Constraint("Symmetric", 13, 2, 23, 2, -1, 1))
sketch5.addConstraint(Sketcher.Constraint("Symmetric", 16, 3, 19, 3, -2))
sketch5.addConstraint(Sketcher.Constraint("Symmetric", 13, 2, 21, 2, -2))
sketch5.addConstraint(Sketcher.Constraint("Vertical", 3, 2, 4, 2))
sketch5.addConstraint(Sketcher.Constraint("Vertical", 7, 2, 10, 2))
sketch5.addConstraint(Sketcher.Constraint("DistanceY", 9, 1, 9, 2, Q("1 mm")))
sketch5.addConstraint(Sketcher.Constraint("Radius", 12, Q("2.45 mm")))
sketch5.addConstraint(Sketcher.Constraint("DistanceX", 1, 1, 1, 2, Q("31.1 mm")))
sketch5.addConstraint(Sketcher.Constraint("DistanceX", 8, 2, 8, 1, Q("0.1 mm")))
sketch5.addConstraint(Sketcher.Constraint("DistanceY", 0, 1, 0, 2, Q("1.8 mm")))
sketch5.addConstraint(Sketcher.Constraint("DistanceY", 16, 3, 0, 2, Q("4 mm")))
sketch5.addConstraint(Sketcher.Constraint("DistanceY", 12, 3, -1, 1, Q("14.7 mm")))
pad4 = body.newObject("PartDesign::Pad", "Pad003")
pad4.Profile = sketch5
pad4.Length = 4.4
doc.recompute()

fillet2 = body.newObject("PartDesign::Fillet", "Fillet001")
fillet2.Base = (pad4, edges_at(pad4, [
    (15.55, 0.8, 16.9),
    (-15.55, 0.8, 16.9),
    (15.55, 0.8, -16.9),
    (-15.55, 0.8, -16.9),
    (-15.55, 0.8, 11.25),
    (-15.55, 0.8, -11.25),
    (15.55, 0.8, 11.25),
    (15.55, 0.8, -11.25),
]))
fillet2.Radius = 1

# Sketch on XZ plane
sketch6 = body.newObject("Sketcher::SketchObject", "Sketch005")
sketch6.AttachmentSupport = (doc.getObject("XZ_Plane"), [""])
sketch6.MapMode = "FlatFace"
sketch6.AttachmentOffset = App.Placement(V(0, 0, 1.4), App.Rotation())
sketch6.addGeometry(Part.LineSegment(V(-18, 19, 0), V(-18, -19, 0)), False)
sketch6.addGeometry(Part.LineSegment(V(-18, -19, 0), V(18, -19, 0)), False)
sketch6.addGeometry(Part.LineSegment(V(18, -19, 0), V(18, 19, 0)), False)
sketch6.addGeometry(Part.LineSegment(V(18, 19, 0), V(-18, 19, 0)), False)
sketch6.addGeometry(Part.LineSegment(V(18, -19, 0), V(-18, -19, 0)), False)
sketch6.addGeometry(Part.LineSegment(V(-18, -19, 0), V(-18, 19, 0)), False)
sketch6.addGeometry(Part.LineSegment(V(-18, 19, 0), V(18, 19, 0)), False)
sketch6.addGeometry(Part.LineSegment(V(18, 19, 0), V(18, -19, 0)), False)
sketch6.addConstraint(Sketcher.Constraint("Coincident", 0, 2, 1, 1))
sketch6.addConstraint(Sketcher.Constraint("Coincident", 1, 2, 2, 1))
sketch6.addConstraint(Sketcher.Constraint("Coincident", 2, 2, 3, 1))
sketch6.addConstraint(Sketcher.Constraint("Coincident", 3, 2, 0, 1))
sketch6.addConstraint(Sketcher.Constraint("Coincident", 4, 2, 5, 1))
sketch6.addConstraint(Sketcher.Constraint("Coincident", 5, 2, 6, 1))
sketch6.addConstraint(Sketcher.Constraint("Coincident", 6, 2, 7, 1))
sketch6.addConstraint(Sketcher.Constraint("Coincident", 7, 2, 4, 1))
sketch6.addConstraint(Sketcher.Constraint("Vertical", 0))
sketch6.addConstraint(Sketcher.Constraint("Horizontal", 1))
sketch6.addConstraint(Sketcher.Constraint("Vertical", 2))
sketch6.addConstraint(Sketcher.Constraint("Horizontal", 3))
sketch6.addConstraint(Sketcher.Constraint("Horizontal", 4))
sketch6.addConstraint(Sketcher.Constraint("Vertical", 5))
sketch6.addConstraint(Sketcher.Constraint("Horizontal", 6))
sketch6.addConstraint(Sketcher.Constraint("Vertical", 7))
sketch6.addConstraint(Sketcher.Constraint("Symmetric", 0, 2, 2, 2, -1, 1))
sketch6.addConstraint(Sketcher.Constraint("Symmetric", 4, 2, 6, 2, -1, 1))
sketch6.addConstraint(Sketcher.Constraint("DistanceX", 4, 2, 4, 1, Q("36 mm")))
sketch6.addConstraint(Sketcher.Constraint("DistanceX", 1, 1, 1, 2, Q("36.2 mm")))
sketch6.addConstraint(Sketcher.Constraint("DistanceY", 0, 2, 0, 1, Q("37.4 mm")))
sketch6.addConstraint(Sketcher.Constraint("DistanceY", 5, 1, 5, 2, Q("37.2 mm")))
pocket2 = body.newObject("PartDesign::Pocket", "Pocket001")
pocket2.Profile = sketch6
pocket2.Length = 1.4
doc.recompute()

fillet3 = body.newObject("PartDesign::Fillet", "Fillet002")
fillet3.Base = (pocket2, edges_at(pocket2, [
    (-18, -0.7, -13.65),
    (-18, -0.7, -15.75),
    (18, -0.7, -15.75),
    (18, -0.7, -13.65),
    (18, -0.7, 13.65),
    (18, -0.7, 15.75),
    (-18, -0.7, 15.75),
    (-18, -0.7, 13.65),
    (18, -0.7, -11.25),
    (-18, -0.7, -11.25),
    (-18, -0.7, 18.6),
    (-18, -0.7, 11.25),
    (18, -0.7, -18.6),
    (18, -0.7, 11.25),
    (18, -0.7, 18.6),
    (-18, -0.7, -18.6),
]))
fillet3.Radius = 0.5
doc.recompute()

fillet4 = body.newObject("PartDesign::Fillet", "Fillet003")
fillet4.Base = (fillet3, edges_at(fillet3, [
    (18.1, 1.5, -11.25),
    (-18.1, 1.5, -11.25),
    (-18.1, 1.5, 11.25),
    (18.1, 1.5, 11.25),
]))
fillet4.Radius = 0.6

# Sketch on XZ plane
sketch7 = body.newObject("Sketcher::SketchObject", "Sketch006")
sketch7.AttachmentSupport = (doc.getObject("XZ_Plane"), [""])
sketch7.MapMode = "FlatFace"
sketch7.AttachmentOffset = App.Placement(V(0, 0, -3), App.Rotation())
sketch7.addGeometry(Part.LineSegment(V(-18.1, 20.5, 0), V(18.1, 20.5, 0)), False)
sketch7.addGeometry(Part.ArcOfCircle(Part.Circle(V(18.1, 17.7, 0), V(0, 0, 1), 2.8), math.radians(0), math.radians(90)), False)
sketch7.addGeometry(Part.LineSegment(V(20.9, 17.7, 0), V(20.9, -17.7, 0)), False)
sketch7.addGeometry(Part.ArcOfCircle(Part.Circle(V(18.1, -17.7, 0), V(0, 0, 1), 2.8), math.radians(-90), math.radians(0)), False)
sketch7.addGeometry(Part.LineSegment(V(18.1, -20.5, 0), V(-18.1, -20.5, 0)), False)
sketch7.addGeometry(Part.ArcOfCircle(Part.Circle(V(-18.1, -17.7, 0), V(0, 0, 1), 2.8), math.radians(-180), math.radians(-90)), False)
sketch7.addGeometry(Part.LineSegment(V(-20.9, -17.7, 0), V(-20.9, 17.7, 0)), False)
sketch7.addGeometry(Part.ArcOfCircle(Part.Circle(V(-18.1, 17.7, 0), V(0, 0, 1), 2.8), math.radians(90), math.radians(180)), False)
sketch7.addGeometry(Part.Circle(V(-18, 14.7, 0), V(0, 0, 1), 1.1), False)
sketch7.addGeometry(Part.Circle(V(18, 14.7, 0), V(0, 0, 1), 1.1), False)
sketch7.addGeometry(Part.Circle(V(-18, -14.7, 0), V(0, 0, 1), 1.1), False)
sketch7.addGeometry(Part.Circle(V(0, -4.6, 0), V(0, 0, 1), 5.2), False)
sketch7.addGeometry(Part.Circle(V(18, -14.7, 0), V(0, 0, 1), 1.1), False)
sketch7.addConstraint(Sketcher.Constraint("Tangent", 0, 2, 1, 2))
sketch7.addConstraint(Sketcher.Constraint("Tangent", 1, 1, 2, 1))
sketch7.addConstraint(Sketcher.Constraint("Tangent", 2, 2, 3, 2))
sketch7.addConstraint(Sketcher.Constraint("Tangent", 3, 1, 4, 1))
sketch7.addConstraint(Sketcher.Constraint("Tangent", 4, 2, 5, 2))
sketch7.addConstraint(Sketcher.Constraint("Tangent", 5, 1, 6, 1))
sketch7.addConstraint(Sketcher.Constraint("Tangent", 6, 2, 7, 2))
sketch7.addConstraint(Sketcher.Constraint("Tangent", 7, 1, 0, 1))
sketch7.addConstraint(Sketcher.Constraint("Horizontal", 0))
sketch7.addConstraint(Sketcher.Constraint("Vertical", 2))
sketch7.addConstraint(Sketcher.Constraint("Horizontal", 4))
sketch7.addConstraint(Sketcher.Constraint("Vertical", 6))
sketch7.addConstraint(Sketcher.Constraint("Equal", 1, 3))
sketch7.addConstraint(Sketcher.Constraint("Equal", 3, 5))
sketch7.addConstraint(Sketcher.Constraint("Equal", 5, 7))
sketch7.addConstraint(Sketcher.Constraint("Equal", 8, 9))
sketch7.addConstraint(Sketcher.Constraint("Equal", 9, 10))
sketch7.addConstraint(Sketcher.Constraint("Equal", 10, 12))
sketch7.addConstraint(Sketcher.Constraint("Symmetric", 1, 3, 5, 3, -1, 1))
sketch7.addConstraint(Sketcher.Constraint("Symmetric", 9, 3, 10, 3, -1, 1))
sketch7.addConstraint(Sketcher.Constraint("Symmetric", 8, 3, 12, 3, -1, 1))
sketch7.addConstraint(Sketcher.Constraint("Symmetric", 8, 3, 9, 3, -2))
sketch7.addConstraint(Sketcher.Constraint("PointOnObject", 11, 3, -2))
sketch7.addConstraint(Sketcher.Constraint("Diameter", 8, Q("2.1 mm")))
sketch7.addConstraint(Sketcher.Constraint("Diameter", 11, Q("10.5 mm")))
sketch7.addConstraint(Sketcher.Constraint("Radius", 1, Q("2.8 mm")))
sketch7.addConstraint(Sketcher.Constraint("DistanceX", 0, 1, 0, 2, Q("36.2 mm")))
sketch7.addConstraint(Sketcher.Constraint("DistanceY", 2, 2, 2, 1, Q("35.4 mm")))
sketch7.addConstraint(Sketcher.Constraint("DistanceX", 8, 3, -1, 1, Q("18 mm")))
sketch7.addConstraint(Sketcher.Constraint("DistanceY", 8, 3, 7, 3, Q("3 mm")))
sketch7.addConstraint(Sketcher.Constraint("DistanceY", 11, 3, -1, 1, Q("4.6 mm")))
pad5 = body.newObject("PartDesign::Pad", "Pad004")
pad5.Profile = sketch7
pad5.Length = 2

# Sketch on XZ plane
sketch8 = body.newObject("Sketcher::SketchObject", "Sketch007")
sketch8.AttachmentSupport = (doc.getObject("XZ_Plane"), [""])
sketch8.MapMode = "FlatFace"
sketch8.AttachmentOffset = App.Placement(V(0, 0, -3), App.Rotation())
sketch8.addGeometry(Part.LineSegment(V(-20.9, -12.6, 0), V(-18, -12.6, 0)), False)
sketch8.addGeometry(Part.ArcOfCircle(Part.Circle(V(-18, -14.7, 0), V(0, 0, 1), 2.1), math.radians(-90), math.radians(90)), False)
sketch8.addGeometry(Part.LineSegment(V(-18, -16.8, 0), V(-20.9, -16.8, 0)), False)
sketch8.addGeometry(Part.ArcOfCircle(Part.Circle(V(-20.9, -14.7, 0), V(0, 0, 1), 2.1), math.radians(90), math.radians(270)), False)
sketch8.addGeometry(Part.LineSegment(V(18, -12.6, 0), V(20.9, -12.6, 0)), False)
sketch8.addGeometry(Part.ArcOfCircle(Part.Circle(V(20.9, -14.7, 0), V(0, 0, 1), 2.1), math.radians(-90), math.radians(90)), False)
sketch8.addGeometry(Part.LineSegment(V(20.9, -16.8, 0), V(18, -16.8, 0)), False)
sketch8.addGeometry(Part.ArcOfCircle(Part.Circle(V(18, -14.7, 0), V(0, 0, 1), 2.1), math.radians(90), math.radians(270)), False)
sketch8.addGeometry(Part.LineSegment(V(20.9, 12.6, 0), V(18, 12.6, 0)), False)
sketch8.addGeometry(Part.ArcOfCircle(Part.Circle(V(18, 14.7, 0), V(0, 0, 1), 2.1), math.radians(90), math.radians(270)), False)
sketch8.addGeometry(Part.LineSegment(V(18, 16.8, 0), V(20.9, 16.8, 0)), False)
sketch8.addGeometry(Part.ArcOfCircle(Part.Circle(V(20.9, 14.7, 0), V(0, 0, 1), 2.1), math.radians(-90), math.radians(90)), False)
sketch8.addGeometry(Part.LineSegment(V(-18, 12.6, 0), V(-20.9, 12.6, 0)), False)
sketch8.addGeometry(Part.ArcOfCircle(Part.Circle(V(-20.9, 14.7, 0), V(0, 0, 1), 2.1), math.radians(90), math.radians(270)), False)
sketch8.addGeometry(Part.LineSegment(V(-20.9, 16.8, 0), V(-18, 16.8, 0)), False)
sketch8.addGeometry(Part.ArcOfCircle(Part.Circle(V(-18, 14.7, 0), V(0, 0, 1), 2.1), math.radians(-90), math.radians(90)), False)
sketch8.addConstraint(Sketcher.Constraint("Tangent", 0, 2, 1, 2))
sketch8.addConstraint(Sketcher.Constraint("Tangent", 1, 1, 2, 1))
sketch8.addConstraint(Sketcher.Constraint("Tangent", 2, 2, 3, 2))
sketch8.addConstraint(Sketcher.Constraint("Tangent", 3, 1, 0, 1))
sketch8.addConstraint(Sketcher.Constraint("Tangent", 4, 2, 5, 2))
sketch8.addConstraint(Sketcher.Constraint("Tangent", 5, 1, 6, 1))
sketch8.addConstraint(Sketcher.Constraint("Tangent", 6, 2, 7, 2))
sketch8.addConstraint(Sketcher.Constraint("Tangent", 7, 1, 4, 1))
sketch8.addConstraint(Sketcher.Constraint("Tangent", 8, 2, 9, 2))
sketch8.addConstraint(Sketcher.Constraint("Tangent", 9, 1, 10, 1))
sketch8.addConstraint(Sketcher.Constraint("Tangent", 10, 2, 11, 2))
sketch8.addConstraint(Sketcher.Constraint("Tangent", 11, 1, 8, 1))
sketch8.addConstraint(Sketcher.Constraint("Tangent", 12, 2, 13, 2))
sketch8.addConstraint(Sketcher.Constraint("Tangent", 13, 1, 14, 1))
sketch8.addConstraint(Sketcher.Constraint("Tangent", 14, 2, 15, 2))
sketch8.addConstraint(Sketcher.Constraint("Tangent", 15, 1, 12, 1))
sketch8.addConstraint(Sketcher.Constraint("Horizontal", 0))
sketch8.addConstraint(Sketcher.Constraint("Horizontal", 2))
sketch8.addConstraint(Sketcher.Constraint("Horizontal", 4))
sketch8.addConstraint(Sketcher.Constraint("Horizontal", 6))
sketch8.addConstraint(Sketcher.Constraint("Horizontal", 8))
sketch8.addConstraint(Sketcher.Constraint("Horizontal", 10))
sketch8.addConstraint(Sketcher.Constraint("Horizontal", 12))
sketch8.addConstraint(Sketcher.Constraint("Horizontal", 14))
sketch8.addConstraint(Sketcher.Constraint("Equal", 3, 5))
sketch8.addConstraint(Sketcher.Constraint("Equal", 7, 9))
sketch8.addConstraint(Sketcher.Constraint("Equal", 11, 13))
sketch8.addConstraint(Sketcher.Constraint("Symmetric", 1, 3, 9, 3, -1, 1))
sketch8.addConstraint(Sketcher.Constraint("Symmetric", 5, 3, 13, 3, -1, 1))
sketch8.addConstraint(Sketcher.Constraint("Symmetric", 3, 3, 5, 3, -2))
sketch8.addConstraint(Sketcher.Constraint("Vertical", 7, 3, 9, 3))
sketch8.addConstraint(Sketcher.Constraint("Vertical", 5, 3, 11, 3))
sketch8.addConstraint(Sketcher.Constraint("Vertical", 1, 3, 15, 3))
sketch8.addConstraint(Sketcher.Constraint("Radius", 1, Q("2.1 mm")))
sketch8.addConstraint(Sketcher.Constraint("DistanceX", 0, 1, 0, 2, Q("2.9 mm")))
sketch8.addConstraint(Sketcher.Constraint("DistanceX", 1, 3, -1, 1, Q("18 mm")))
sketch8.addConstraint(Sketcher.Constraint("DistanceY", 1, 3, -1, 1, Q("14.7 mm")))
pocket3 = body.newObject("PartDesign::Pocket", "Pocket002")
pocket3.Profile = sketch8
pocket3.Length = 1.2
pocket3.Reversed = True
doc.recompute()

chamfer = body.newObject("PartDesign::Chamfer", "Chamfer")
chamfer.Base = (pocket3, edges_at(pocket3, [
    (-20.9, 2.4, 16.8),
    (-20.9, 2.4, 12.6),
    (20.9, 2.4, 12.6),
    (20.9, 2.4, 16.8),
    (20.9, 2.4, -16.8),
    (20.9, 2.4, -12.6),
    (-20.9, 2.4, -12.6),
    (-20.9, 2.4, -16.8),
]))
chamfer.Size = 0.5
doc.recompute()

chamfer2 = body.newObject("PartDesign::Chamfer", "Chamfer001")
chamfer2.Base = (chamfer, edges_at(chamfer, [
    (-19.2, 3, 16.8),
    (-20.9, 3, 17.5),
    (19.2, 3, 12.6),
    (20.9, 3, 0),
    (19.2, 3, -16.8),
    (20.9, 3, -17.5),
    (-19.2, 3, -12.6),
    (-20.9, 3, 0),
    (-20.65, 3, -17.05),
    (-20.65, 3, -12.35),
    (20.65, 3, -17.05),
    (20.65, 3, -12.35),
    (20.65, 3, 12.35),
    (20.65, 3, 17.05),
    (-20.65, 3, 12.35),
    (-20.65, 3, 17.05),
    (20.9, 3, 17.5),
    (0, 3, 20.5),
    (0, 3, -20.5),
    (-20.9, 3, -17.5),
    (-20.08, 3, 19.68),
    (-20.08, 3, -19.68),
    (20.08, 3, -19.68),
    (20.08, 3, 19.68),
    (-5.25, 3, -4.6),
    (-15.9, 3, 14.7),
    (-19.2, 3, 12.6),
    (19.2, 3, 16.8),
    (15.9, 3, 14.7),
    (15.9, 3, -14.7),
    (19.2, 3, -12.6),
    (-19.2, 3, -16.8),
    (-15.9, 3, -14.7),
]))
chamfer2.Size = 0.5

doc.recompute()
